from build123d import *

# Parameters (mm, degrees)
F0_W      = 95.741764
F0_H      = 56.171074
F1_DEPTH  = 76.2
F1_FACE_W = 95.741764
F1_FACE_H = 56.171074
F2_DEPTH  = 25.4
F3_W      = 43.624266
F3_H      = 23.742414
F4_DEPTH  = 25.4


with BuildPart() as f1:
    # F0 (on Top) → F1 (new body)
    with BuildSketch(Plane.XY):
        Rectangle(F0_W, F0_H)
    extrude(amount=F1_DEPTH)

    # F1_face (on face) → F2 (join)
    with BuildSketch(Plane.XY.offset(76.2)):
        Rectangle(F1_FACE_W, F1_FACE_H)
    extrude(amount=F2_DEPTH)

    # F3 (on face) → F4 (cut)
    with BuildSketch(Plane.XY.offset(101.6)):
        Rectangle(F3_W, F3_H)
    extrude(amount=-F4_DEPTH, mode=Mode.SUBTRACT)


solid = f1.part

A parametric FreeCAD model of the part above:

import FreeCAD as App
import Part
import Sketcher
from FreeCAD import Vector
Q = App.Units.Quantity


def add_polygon(sketch, points):
    """Adds a closed chain of lines whose ends are joined by coincident constraints."""
    first, n = sketch.GeometryCount, len(points)
    for a, b in zip(points, points[1:] + points[:1]):
        sketch.addGeometry(Part.LineSegment(App.Vector(*a, 0), App.Vector(*b, 0)), False)
    for i in range(n):
        sketch.addConstraint(Sketcher.Constraint("Coincident", first + i, 2, first + (i + 1) % n, 1))

doc = App.newDocument("Part")
body = doc.addObject("PartDesign::Body", "Body")

sketch1 = doc.addObject("Sketcher::SketchObject", "Sketch")
body.addObject(sketch1)
sketch1.AttachmentSupport = (doc.XY_Plane, [""])
sketch1.MapMode = "FlatFace"
add_polygon(sketch1, [(-48, 28), (-48, -28), (48, -28), (48, 28)])
sketch1.addConstraint(Sketcher.Constraint("Vertical", 0))
sketch1.addConstraint(Sketcher.Constraint("Horizontal", 1))
sketch1.addConstraint(Sketcher.Constraint("Vertical", 2))
sketch1.addConstraint(Sketcher.Constraint("Horizontal", 3))
sketch1.addConstraint(Sketcher.Constraint("Symmetric", 0, 2, 2, 2, -1, 1))
sketch1.addConstraint(Sketcher.Constraint("DistanceX", 1, 1, 1, 2, 95.741764))
sketch1.addConstraint(Sketcher.Constraint("DistanceY", 0, 2, 0, 1, 56.171074))
pad1 = doc.addObject("PartDesign::Pad", "Pad")
body.addObject(pad1)
pad1.Profile = sketch1
pad1.Length = Q("3 in")

sketch2 = doc.addObject("Sketcher::SketchObject", "Sketch001")
body.addObject(sketch2)
sketch2.AttachmentSupport = (doc.XY_Plane, [""])
sketch2.MapMode = "FlatFace"
sketch2.AttachmentOffset = App.Placement(Vector(0, 0, 3 * 25.4), App.Rotation())
add_polygon(sketch2, [(-48, 28), (-48, -28), (48, -28), (48, 28)])
sketch2.addConstraint(Sketcher.Constraint("Vertical", 0))
sketch2.addConstraint(Sketcher.Constraint("Horizontal", 1))
sketch2.addConstraint(Sketcher.Constraint("Vertical", 2))
sketch2.addConstraint(Sketcher.Constraint("Horizontal", 3))
sketch2.addConstraint(Sketcher.Constraint("Symmetric", 0, 2, 2, 2, -1, 1))
sketch2.addConstraint(Sketcher.Constraint("DistanceX", 1, 1, 1, 2, 95.741764))
sketch2.addConstraint(Sketcher.Constraint("DistanceY", 0, 2, 0, 1, 56.171074))
pad2 = doc.addObject("PartDesign::Pad", "Pad001")
body.addObject(pad2)
pad2.Profile = sketch2
pad2.Length = Q("1 in")

sketch3 = doc.addObject("Sketcher::SketchObject", "Sketch002")
body.addObject(sketch3)
sketch3.AttachmentSupport = (doc.XY_Plane, [""])
sketch3.MapMode = "FlatFace"
sketch3.AttachmentOffset = App.Placement(Vector(0, 0, 4 * 25.4), App.Rotation())
add_polygon(sketch3, [(-22, 12), (-22, -12), (22, -12), (22, 12)])
sketch3.addConstraint(Sketcher.Constraint("Vertical", 0))
sketch3.addConstraint(Sketcher.Constraint("Horizontal", 1))
sketch3.addConstraint(Sketcher.Constraint("Vertical", 2))
sketch3.addConstraint(Sketcher.Constraint("Horizontal", 3))
sketch3.addConstraint(Sketcher.Constraint("Symmetric", 0, 2, 2, 2, -1, 1))
sketch3.addConstraint(Sketcher.Constraint("DistanceX", 1, 1, 1, 2, 43.624266))
sketch3.addConstraint(Sketcher.Constraint("DistanceY", 0, 2, 0, 1, 23.742414))
pocket1 = doc.addObject("PartDesign::Pocket", "Pocket")
body.addObject(pocket1)
pocket1.Profile = sketch3
pocket1.Length = Q("1 in")

doc.recompute()
